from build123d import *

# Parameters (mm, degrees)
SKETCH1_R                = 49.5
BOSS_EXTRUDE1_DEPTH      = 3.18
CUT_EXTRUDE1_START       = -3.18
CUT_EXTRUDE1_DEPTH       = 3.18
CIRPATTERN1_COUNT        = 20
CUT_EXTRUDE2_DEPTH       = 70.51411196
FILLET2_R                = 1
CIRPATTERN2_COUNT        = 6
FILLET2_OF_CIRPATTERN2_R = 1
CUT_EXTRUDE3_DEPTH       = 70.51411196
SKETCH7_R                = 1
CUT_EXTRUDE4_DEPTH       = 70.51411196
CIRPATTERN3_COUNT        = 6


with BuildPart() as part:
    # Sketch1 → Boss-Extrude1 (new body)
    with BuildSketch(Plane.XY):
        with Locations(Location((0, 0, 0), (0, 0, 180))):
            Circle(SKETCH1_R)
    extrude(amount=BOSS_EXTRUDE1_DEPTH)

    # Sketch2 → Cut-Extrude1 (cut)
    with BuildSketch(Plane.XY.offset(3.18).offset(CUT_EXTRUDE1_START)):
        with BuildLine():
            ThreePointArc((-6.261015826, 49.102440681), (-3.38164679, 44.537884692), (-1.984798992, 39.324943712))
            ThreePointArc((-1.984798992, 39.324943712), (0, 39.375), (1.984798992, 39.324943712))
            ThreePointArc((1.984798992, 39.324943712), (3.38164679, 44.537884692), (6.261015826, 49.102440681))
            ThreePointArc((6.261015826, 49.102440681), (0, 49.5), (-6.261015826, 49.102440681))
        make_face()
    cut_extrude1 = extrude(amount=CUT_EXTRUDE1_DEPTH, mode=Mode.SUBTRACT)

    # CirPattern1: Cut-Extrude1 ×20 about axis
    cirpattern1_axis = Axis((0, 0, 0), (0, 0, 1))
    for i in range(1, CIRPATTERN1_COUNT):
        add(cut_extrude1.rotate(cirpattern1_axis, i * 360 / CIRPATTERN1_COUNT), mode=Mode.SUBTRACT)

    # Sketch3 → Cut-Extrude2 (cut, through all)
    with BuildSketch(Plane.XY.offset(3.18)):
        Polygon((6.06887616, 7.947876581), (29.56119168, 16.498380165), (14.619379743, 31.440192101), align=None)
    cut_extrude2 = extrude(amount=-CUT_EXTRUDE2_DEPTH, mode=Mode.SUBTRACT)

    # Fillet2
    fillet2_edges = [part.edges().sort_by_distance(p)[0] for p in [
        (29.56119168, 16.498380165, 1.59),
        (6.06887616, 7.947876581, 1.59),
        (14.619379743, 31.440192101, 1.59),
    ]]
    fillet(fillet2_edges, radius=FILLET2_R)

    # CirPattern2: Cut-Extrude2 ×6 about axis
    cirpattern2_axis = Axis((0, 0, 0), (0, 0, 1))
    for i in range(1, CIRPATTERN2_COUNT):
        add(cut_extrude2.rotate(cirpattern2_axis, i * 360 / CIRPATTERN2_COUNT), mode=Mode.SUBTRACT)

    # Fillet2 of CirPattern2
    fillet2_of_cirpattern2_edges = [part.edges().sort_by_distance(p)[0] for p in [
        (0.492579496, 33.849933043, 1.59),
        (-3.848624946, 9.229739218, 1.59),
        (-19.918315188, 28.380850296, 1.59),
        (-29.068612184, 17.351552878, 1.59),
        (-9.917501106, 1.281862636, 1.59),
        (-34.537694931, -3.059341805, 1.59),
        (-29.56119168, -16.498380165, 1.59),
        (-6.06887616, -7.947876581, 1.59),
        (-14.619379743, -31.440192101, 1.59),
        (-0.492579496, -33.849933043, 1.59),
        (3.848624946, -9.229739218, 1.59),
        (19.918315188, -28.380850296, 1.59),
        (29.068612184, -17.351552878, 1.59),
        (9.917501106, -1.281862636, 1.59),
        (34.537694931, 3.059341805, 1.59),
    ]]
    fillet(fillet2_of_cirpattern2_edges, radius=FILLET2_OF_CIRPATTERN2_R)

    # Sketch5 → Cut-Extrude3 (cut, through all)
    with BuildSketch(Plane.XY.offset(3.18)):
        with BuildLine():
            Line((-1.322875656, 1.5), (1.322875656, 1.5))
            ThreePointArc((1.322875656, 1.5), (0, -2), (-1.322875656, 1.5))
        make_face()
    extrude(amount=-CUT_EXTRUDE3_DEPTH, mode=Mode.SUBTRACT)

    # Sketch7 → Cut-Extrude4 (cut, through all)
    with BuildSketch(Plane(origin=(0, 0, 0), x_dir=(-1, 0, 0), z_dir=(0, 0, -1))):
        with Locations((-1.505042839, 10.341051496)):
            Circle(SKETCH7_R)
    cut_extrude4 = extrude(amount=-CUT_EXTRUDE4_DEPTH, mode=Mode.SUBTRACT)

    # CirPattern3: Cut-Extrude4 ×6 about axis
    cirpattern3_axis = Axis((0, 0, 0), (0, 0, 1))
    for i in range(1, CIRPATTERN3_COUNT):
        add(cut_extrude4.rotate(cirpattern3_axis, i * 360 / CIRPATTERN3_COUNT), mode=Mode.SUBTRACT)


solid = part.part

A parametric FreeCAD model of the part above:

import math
import FreeCAD as App
import Part
import Sketcher
Q = App.Units.Quantity


def edges_at(feature, points):
    """Names of the edges that pass closest to the given points."""
    edges = feature.Shape.Edges
    near = lambda p: min(range(len(edges)), key=lambda i: edges[i].distToShape(Part.Vertex(*p))[0])
    return sorted({f"Edge{near(p) + 1}" for p in points})


def add_polygon(sketch, points):
    """Adds a closed chain of lines whose ends are joined by coincident constraints."""
    first, n = sketch.GeometryCount, len(points)
    for a, b in zip(points, points[1:] + points[:1]):
        sketch.addGeometry(Part.LineSegment(App.Vector(*a, 0), App.Vector(*b, 0)), False)
    for i in range(n):
        sketch.addConstraint(Sketcher.Constraint("Coincident", first + i, 2, first + (i + 1) % n, 1))

doc = App.newDocument("Part")
body = doc.addObject("PartDesign::Body", "Body")

# Sketch on XY plane
sketch1 = body.newObject("Sketcher::SketchObject", "Sketch")
sketch1.AttachmentSupport = (doc.getObject("XY_Plane"), [""])
sketch1.MapMode = "FlatFace"
sketch1.addGeometry(Part.Circle(App.Vector(0, 0, 0), App.Vector(0, 0, 1), 50), False)
sketch1.addConstraint([
    Sketcher.Constraint("Coincident", 0, 3, -1, 1),
    Sketcher.Constraint("Diameter", 0, 99.0),
])
pad1 = body.newObject("PartDesign::Pad", "Pad")
pad1.Profile = sketch1
pad1.Length = 3.18

# Sketch on XY plane
sketch2 = body.newObject("Sketcher::SketchObject", "Sketch001")
sketch2.AttachmentSupport = (doc.getObject("XY_Plane"), [""])
sketch2.MapMode = "FlatFace"
sketch2.addGeometry([
    Part.ArcOfCircle(Part.Circle(App.Vector(-19.9, 37.3, 0), App.Vector(0, 0, 1), 18), math.radians(6), math.radians(41)),
    Part.ArcOfCircle(Part.Circle(App.Vector(0, 0, 0), App.Vector(0, 0, 1), 39.4), math.radians(87.11), math.radians(92.89)),
    Part.ArcOfCircle(Part.Circle(App.Vector(19.9, 37.3, 0), App.Vector(0, 0, 1), 18), math.radians(139), math.radians(174)),
    Part.ArcOfCircle(Part.Circle(App.Vector(0, 0, 0), App.Vector(0, 0, 1), 49.5), math.radians(82.73), math.radians(97.27)),
], False)
sketch2.addConstraint([
    Sketcher.Constraint("Coincident", 0, 1, 1, 2),
    Sketcher.Constraint("Coincident", 1, 1, 2, 2),
    Sketcher.Constraint("Coincident", 2, 1, 3, 1),
    Sketcher.Constraint("Coincident", 3, 2, 0, 2),
    Sketcher.Constraint("Coincident", 1, 3, -1, 1),
    Sketcher.Constraint("Coincident", 3, 3, -1, 1),
    Sketcher.Constraint("Equal", 0, 2),
    Sketcher.Constraint("Symmetric", 0, 3, 2, 3, -2),
    Sketcher.Constraint("Radius", 0, 18.0),
    Sketcher.Constraint("Radius", 3, 49.5),
    Sketcher.Constraint("Radius", 1, 39.375),
    Sketcher.Constraint("DistanceX", 0, 1, -1, 1, 1.984799),
    Sketcher.Constraint("DistanceX", 0, 3, -1, 1, 19.873369),
])
pocket1 = body.newObject("PartDesign::Pocket", "Pocket")
pocket1.Profile = sketch2
pocket1.Length = 3.18
pocket1.Reversed = True
doc.recompute()

polarpattern = body.newObject("PartDesign::PolarPattern", "PolarPattern")
polarpattern.Originals = [pocket1]
polarpattern.Axis = (doc.getObject("Z_Axis"), [""])
polarpattern.Angle = 360
polarpattern.Occurrences = 20
body.Tip = polarpattern

# Sketch on XY plane
sketch3 = body.newObject("Sketcher::SketchObject", "Sketch002")
sketch3.AttachmentSupport = (doc.getObject("XY_Plane"), [""])
sketch3.MapMode = "FlatFace"
sketch3.AttachmentOffset = App.Placement(App.Vector(0, 0, 3.18), App.Rotation())
add_polygon(sketch3, [(6, 8), (30, 16), (15, 31)])  # lines 0-2
sketch3.addConstraint([
    Sketcher.Constraint("Equal", 0, 2),
    Sketcher.Constraint("Angle", 0, Q("20 deg")),
    Sketcher.Constraint("Angle", 1, Q("135 deg")),
    Sketcher.Constraint("Distance", 0, 25.0),
    Sketcher.Constraint("DistanceX", -1, 1, 0, 2, 29.561192),
    Sketcher.Constraint("DistanceY", -1, 1, 0, 2, 16.49838),
])
pocket2 = body.newObject("PartDesign::Pocket", "Pocket001")
pocket2.Profile = sketch3
pocket2.Type = "ThroughAll"
doc.recompute()

fillet = body.newObject("PartDesign::Fillet", "Fillet")
fillet.Base = (pocket2, edges_at(pocket2, [(29.561, 16.498, 1.59), (6.069, 7.948, 1.59), (14.619, 31.44, 1.59)]))
fillet.Radius = 1
doc.recompute()

polarpattern2 = body.newObject("PartDesign::PolarPattern", "PolarPattern001")
polarpattern2.Originals = [pocket2]
polarpattern2.Axis = (doc.getObject("Z_Axis"), [""])
polarpattern2.Angle = 360
polarpattern2.Occurrences = 6
body.Tip = polarpattern2
doc.recompute()

fillet2 = body.newObject("PartDesign::Fillet", "Fillet001")
fillet2.Base = (polarpattern2, edges_at(polarpattern2, [
    (0.493, 33.85, 1.59),
    (-3.849, 9.23, 1.59),
    (-19.918, 28.381, 1.59),
    (-29.069, 17.352, 1.59),
    (-9.918, 1.282, 1.59),
    (-34.538, -3.059, 1.59),
    (-29.561, -16.498, 1.59),
    (-6.069, -7.948, 1.59),
    (-14.619, -31.44, 1.59),
    (-0.493, -33.85, 1.59),
    (3.849, -9.23, 1.59),
    (19.918, -28.381, 1.59),
    (29.069, -17.352, 1.59),
    (9.918, -1.282, 1.59),
    (34.538, 3.059, 1.59),
]))
fillet2.Radius = 1

# Sketch on XY plane
sketch4 = body.newObject("Sketcher::SketchObject", "Sketch003")
sketch4.AttachmentSupport = (doc.getObject("XY_Plane"), [""])
sketch4.MapMode = "FlatFace"
sketch4.AttachmentOffset = App.Placement(App.Vector(0, 0, 3.18), App.Rotation())
sketch4.addGeometry([
    Part.LineSegment(App.Vector(1.3, 1.5, 0), App.Vector(-1.3, 1.5, 0)),
    Part.ArcOfCircle(Part.Circle(App.Vector(0, 0, 0), App.Vector(0, 0, 1), 2), math.radians(131), math.radians(409)),
], False)
sketch4.addConstraint([
    Sketcher.Constraint("Coincident", 0, 1, 1, 2),
    Sketcher.Constraint("Coincident", 1, 1, 0, 2),
    Sketcher.Constraint("Horizontal", 0),
    Sketcher.Constraint("Coincident", 1, 3, -1, 1),
    Sketcher.Constraint("Radius", 1, 2.0),
    Sketcher.Constraint("DistanceY", -1, 1, 0, 1, 1.5),
])
pocket3 = body.newObject("PartDesign::Pocket", "Pocket002")
pocket3.Profile = sketch4
pocket3.Type = "ThroughAll"

# Sketch on XY plane
sketch5 = body.newObject("Sketcher::SketchObject", "Sketch004")
sketch5.AttachmentSupport = (doc.getObject("XY_Plane"), [""])
sketch5.MapMode = "FlatFace"
sketch5.addGeometry(Part.Circle(App.Vector(1.5, 10.3, 0), App.Vector(0, 0, 1), 1), False)
sketch5.addConstraint([
    Sketcher.Constraint("Diameter", 0, 2.0),
    Sketcher.Constraint("DistanceY", -1, 1, 0, 3, 10.341051),
    Sketcher.Constraint("DistanceX", -1, 1, 0, 3, 1.505043),
])
pocket4 = body.newObject("PartDesign::Pocket", "Pocket003")
pocket4.Profile = sketch5
pocket4.Type = "ThroughAll"
pocket4.Reversed = True
doc.recompute()

polarpattern3 = body.newObject("PartDesign::PolarPattern", "PolarPattern002")
polarpattern3.Originals = [pocket4]
polarpattern3.Axis = (doc.getObject("Z_Axis"), [""])
polarpattern3.Angle = 360
polarpattern3.Occurrences = 6
body.Tip = polarpattern3

doc.recompute()
